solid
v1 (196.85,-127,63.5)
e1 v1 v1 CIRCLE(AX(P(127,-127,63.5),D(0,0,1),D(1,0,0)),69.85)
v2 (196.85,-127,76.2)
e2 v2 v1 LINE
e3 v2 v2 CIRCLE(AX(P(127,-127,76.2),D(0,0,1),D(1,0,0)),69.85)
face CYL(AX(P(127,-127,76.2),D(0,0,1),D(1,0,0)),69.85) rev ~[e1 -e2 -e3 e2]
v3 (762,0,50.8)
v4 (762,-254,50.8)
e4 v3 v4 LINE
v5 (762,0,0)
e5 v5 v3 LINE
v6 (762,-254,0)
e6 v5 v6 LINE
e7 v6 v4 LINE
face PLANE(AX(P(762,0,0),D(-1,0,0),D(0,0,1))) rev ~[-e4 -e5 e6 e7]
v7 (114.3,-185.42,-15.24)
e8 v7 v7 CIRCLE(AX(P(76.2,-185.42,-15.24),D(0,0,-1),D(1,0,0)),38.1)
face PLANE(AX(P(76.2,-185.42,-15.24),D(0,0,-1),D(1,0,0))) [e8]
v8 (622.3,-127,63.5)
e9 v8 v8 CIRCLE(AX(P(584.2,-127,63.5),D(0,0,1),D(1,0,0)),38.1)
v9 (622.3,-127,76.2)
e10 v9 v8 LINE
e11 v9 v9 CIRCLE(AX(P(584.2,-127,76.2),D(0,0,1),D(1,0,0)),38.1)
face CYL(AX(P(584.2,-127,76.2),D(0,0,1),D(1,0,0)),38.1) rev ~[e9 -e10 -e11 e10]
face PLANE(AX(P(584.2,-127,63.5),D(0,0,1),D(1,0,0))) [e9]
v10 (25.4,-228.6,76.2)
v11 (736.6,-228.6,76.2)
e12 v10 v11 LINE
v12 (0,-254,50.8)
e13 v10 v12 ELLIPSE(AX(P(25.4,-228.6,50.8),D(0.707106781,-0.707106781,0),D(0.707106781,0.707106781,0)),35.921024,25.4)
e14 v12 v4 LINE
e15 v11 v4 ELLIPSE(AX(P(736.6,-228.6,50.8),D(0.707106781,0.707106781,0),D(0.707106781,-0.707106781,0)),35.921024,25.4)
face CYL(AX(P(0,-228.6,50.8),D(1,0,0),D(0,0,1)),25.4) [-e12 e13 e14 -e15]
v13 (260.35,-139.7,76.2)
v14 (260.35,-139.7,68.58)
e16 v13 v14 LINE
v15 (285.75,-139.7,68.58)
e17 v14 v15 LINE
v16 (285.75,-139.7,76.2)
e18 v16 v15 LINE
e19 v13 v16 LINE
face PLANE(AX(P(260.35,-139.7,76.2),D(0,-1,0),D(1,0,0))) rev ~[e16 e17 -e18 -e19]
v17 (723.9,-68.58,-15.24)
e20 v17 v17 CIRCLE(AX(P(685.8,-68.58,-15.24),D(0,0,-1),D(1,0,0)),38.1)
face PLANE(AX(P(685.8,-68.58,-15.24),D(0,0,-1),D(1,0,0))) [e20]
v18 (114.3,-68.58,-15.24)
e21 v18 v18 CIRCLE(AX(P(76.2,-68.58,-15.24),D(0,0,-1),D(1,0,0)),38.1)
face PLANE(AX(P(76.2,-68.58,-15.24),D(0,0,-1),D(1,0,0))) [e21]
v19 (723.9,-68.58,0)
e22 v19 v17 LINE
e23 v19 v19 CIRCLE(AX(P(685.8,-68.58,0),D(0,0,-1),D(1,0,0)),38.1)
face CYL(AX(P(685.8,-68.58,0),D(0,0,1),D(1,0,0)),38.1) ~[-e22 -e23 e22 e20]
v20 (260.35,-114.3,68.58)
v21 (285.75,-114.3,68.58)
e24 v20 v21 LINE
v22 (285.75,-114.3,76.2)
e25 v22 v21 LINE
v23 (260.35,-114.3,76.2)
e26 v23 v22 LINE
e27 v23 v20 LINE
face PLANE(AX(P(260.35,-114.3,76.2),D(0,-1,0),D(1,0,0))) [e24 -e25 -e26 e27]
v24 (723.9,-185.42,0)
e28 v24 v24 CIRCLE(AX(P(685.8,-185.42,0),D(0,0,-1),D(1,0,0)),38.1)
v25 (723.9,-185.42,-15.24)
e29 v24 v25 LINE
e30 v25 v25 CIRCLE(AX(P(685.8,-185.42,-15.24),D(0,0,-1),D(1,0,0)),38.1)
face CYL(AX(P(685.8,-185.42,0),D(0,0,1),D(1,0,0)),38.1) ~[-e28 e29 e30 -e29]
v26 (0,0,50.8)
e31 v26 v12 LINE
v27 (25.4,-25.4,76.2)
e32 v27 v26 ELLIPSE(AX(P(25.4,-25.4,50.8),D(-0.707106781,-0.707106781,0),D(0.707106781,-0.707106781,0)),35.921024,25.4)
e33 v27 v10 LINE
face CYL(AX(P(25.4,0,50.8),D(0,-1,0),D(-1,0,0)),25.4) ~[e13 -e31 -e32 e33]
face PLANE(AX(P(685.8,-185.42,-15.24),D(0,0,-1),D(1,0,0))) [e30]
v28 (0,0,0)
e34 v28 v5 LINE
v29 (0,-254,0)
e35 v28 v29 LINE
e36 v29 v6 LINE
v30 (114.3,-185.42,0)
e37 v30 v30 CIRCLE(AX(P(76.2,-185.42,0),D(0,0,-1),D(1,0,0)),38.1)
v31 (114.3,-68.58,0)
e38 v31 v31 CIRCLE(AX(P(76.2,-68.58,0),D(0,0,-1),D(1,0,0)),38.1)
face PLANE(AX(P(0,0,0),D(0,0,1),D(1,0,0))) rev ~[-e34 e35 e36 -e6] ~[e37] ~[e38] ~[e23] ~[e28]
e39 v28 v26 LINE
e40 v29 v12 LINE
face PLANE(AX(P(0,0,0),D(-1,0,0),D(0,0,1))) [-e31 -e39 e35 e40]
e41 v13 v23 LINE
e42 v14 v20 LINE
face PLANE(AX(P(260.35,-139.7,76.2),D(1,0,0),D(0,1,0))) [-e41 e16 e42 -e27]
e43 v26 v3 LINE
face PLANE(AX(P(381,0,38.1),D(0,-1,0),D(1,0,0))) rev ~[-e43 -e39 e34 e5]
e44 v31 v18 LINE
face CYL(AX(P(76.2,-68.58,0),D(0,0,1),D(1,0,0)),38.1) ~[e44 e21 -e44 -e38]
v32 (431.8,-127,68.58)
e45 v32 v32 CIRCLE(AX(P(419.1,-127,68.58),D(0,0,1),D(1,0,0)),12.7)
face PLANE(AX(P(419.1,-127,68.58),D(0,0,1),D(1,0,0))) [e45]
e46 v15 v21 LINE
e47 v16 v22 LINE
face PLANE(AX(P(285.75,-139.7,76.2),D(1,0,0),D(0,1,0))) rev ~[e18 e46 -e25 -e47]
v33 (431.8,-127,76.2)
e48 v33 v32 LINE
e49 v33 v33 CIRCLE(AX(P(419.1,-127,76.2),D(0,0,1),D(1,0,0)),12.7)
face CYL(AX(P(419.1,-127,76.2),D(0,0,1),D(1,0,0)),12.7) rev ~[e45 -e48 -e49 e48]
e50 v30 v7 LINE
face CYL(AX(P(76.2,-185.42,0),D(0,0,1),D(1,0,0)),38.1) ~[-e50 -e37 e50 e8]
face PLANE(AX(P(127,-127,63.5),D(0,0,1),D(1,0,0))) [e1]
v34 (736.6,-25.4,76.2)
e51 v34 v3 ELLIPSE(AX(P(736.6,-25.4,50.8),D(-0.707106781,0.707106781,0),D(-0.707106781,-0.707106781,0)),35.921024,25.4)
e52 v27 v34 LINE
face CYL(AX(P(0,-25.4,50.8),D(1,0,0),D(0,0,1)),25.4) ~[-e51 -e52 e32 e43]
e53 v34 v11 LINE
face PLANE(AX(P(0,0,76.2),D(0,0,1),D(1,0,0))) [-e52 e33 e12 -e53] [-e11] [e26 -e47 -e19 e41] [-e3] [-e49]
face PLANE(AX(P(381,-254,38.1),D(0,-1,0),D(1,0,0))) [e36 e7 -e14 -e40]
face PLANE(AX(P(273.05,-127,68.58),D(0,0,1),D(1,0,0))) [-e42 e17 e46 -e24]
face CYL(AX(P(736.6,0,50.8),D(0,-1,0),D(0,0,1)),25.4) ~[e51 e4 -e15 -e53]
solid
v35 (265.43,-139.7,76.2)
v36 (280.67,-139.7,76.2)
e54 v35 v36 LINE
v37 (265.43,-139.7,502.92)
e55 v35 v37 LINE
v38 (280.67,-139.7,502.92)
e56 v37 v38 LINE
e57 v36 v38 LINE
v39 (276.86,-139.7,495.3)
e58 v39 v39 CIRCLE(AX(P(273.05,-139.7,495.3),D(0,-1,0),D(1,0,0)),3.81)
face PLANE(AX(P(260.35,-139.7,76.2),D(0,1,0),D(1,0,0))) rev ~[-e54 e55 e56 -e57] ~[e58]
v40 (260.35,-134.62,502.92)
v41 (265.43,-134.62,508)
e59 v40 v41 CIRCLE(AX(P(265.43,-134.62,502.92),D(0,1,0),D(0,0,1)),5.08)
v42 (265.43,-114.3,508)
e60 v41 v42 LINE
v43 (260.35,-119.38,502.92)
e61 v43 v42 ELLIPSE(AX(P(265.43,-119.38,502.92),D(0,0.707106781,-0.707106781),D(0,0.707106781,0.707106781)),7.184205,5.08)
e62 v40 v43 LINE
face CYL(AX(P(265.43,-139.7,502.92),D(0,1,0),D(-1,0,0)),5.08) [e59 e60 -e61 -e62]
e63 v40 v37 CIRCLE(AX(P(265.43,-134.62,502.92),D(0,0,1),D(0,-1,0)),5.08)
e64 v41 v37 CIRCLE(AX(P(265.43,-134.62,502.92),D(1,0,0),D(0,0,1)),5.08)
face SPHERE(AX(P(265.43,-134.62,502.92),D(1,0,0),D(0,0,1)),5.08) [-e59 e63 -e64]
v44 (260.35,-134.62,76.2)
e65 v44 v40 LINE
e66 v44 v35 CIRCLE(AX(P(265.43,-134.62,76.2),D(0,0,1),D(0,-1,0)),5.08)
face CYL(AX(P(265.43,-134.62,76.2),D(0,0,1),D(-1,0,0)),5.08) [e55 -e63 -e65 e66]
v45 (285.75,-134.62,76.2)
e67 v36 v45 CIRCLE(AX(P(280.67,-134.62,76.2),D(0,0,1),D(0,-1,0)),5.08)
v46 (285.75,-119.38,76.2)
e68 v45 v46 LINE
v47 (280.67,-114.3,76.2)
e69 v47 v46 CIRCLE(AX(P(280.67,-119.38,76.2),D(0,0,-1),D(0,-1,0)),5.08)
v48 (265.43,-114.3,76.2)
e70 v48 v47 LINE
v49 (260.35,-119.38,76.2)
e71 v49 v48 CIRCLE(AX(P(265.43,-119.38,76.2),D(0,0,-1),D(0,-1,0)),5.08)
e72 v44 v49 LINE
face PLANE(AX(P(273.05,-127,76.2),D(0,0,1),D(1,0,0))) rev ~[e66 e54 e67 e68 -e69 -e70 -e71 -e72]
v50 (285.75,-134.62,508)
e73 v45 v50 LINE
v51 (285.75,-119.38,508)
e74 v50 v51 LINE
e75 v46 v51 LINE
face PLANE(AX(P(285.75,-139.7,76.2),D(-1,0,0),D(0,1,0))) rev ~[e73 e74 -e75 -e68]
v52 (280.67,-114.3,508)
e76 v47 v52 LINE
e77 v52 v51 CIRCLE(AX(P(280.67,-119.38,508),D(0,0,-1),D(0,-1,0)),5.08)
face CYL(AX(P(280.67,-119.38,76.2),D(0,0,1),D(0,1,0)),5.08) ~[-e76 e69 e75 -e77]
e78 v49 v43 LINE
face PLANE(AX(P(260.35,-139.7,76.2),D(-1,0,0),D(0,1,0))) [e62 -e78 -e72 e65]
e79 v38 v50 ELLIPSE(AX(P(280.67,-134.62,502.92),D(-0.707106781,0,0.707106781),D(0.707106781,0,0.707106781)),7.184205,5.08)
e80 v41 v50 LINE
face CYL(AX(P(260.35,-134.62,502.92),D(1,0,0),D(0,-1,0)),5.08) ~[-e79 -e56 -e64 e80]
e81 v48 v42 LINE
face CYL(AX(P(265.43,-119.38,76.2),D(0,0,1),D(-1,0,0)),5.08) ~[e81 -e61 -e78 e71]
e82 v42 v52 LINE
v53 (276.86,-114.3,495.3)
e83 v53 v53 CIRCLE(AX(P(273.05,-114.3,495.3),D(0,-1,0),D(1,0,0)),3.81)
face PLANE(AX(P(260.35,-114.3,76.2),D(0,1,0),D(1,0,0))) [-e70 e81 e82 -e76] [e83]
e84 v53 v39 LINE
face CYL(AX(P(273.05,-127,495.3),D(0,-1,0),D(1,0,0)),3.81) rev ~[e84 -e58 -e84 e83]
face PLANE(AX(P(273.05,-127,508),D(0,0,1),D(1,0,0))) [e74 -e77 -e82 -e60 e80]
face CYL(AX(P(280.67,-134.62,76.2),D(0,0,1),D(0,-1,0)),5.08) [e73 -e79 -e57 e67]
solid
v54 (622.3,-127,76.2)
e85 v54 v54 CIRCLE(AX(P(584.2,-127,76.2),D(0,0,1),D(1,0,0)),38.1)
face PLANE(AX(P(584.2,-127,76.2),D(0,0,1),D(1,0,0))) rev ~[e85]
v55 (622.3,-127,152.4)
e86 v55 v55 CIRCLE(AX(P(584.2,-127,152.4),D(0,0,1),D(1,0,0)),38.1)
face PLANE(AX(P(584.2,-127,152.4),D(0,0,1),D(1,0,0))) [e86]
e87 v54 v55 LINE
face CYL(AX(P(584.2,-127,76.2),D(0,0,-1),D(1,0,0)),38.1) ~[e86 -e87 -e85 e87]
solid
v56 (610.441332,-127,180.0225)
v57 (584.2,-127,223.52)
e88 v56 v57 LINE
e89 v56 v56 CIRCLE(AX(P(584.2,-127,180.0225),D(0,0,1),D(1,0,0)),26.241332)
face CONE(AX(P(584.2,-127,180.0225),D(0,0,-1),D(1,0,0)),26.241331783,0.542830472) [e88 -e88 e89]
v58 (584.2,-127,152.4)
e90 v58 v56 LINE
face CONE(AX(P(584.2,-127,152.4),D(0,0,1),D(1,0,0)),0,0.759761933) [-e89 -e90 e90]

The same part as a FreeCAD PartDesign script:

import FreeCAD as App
import Part
import Sketcher
Q = App.Units.Quantity


def edges_at(feature, points):
    """Names of the edges that pass closest to the given points."""
    edges = feature.Shape.Edges
    near = lambda p: min(range(len(edges)), key=lambda i: edges[i].distToShape(Part.Vertex(*p))[0])
    return sorted({f"Edge{near(p) + 1}" for p in points})


def add_polygon(sketch, points):
    """Adds a closed chain of lines whose ends are joined by coincident constraints."""
    first, n = sketch.GeometryCount, len(points)
    for a, b in zip(points, points[1:] + points[:1]):
        sketch.addGeometry(Part.LineSegment(App.Vector(*a, 0), App.Vector(*b, 0)), False)
    for i in range(n):
        sketch.addConstraint(Sketcher.Constraint("Coincident", first + i, 2, first + (i + 1) % n, 1))

doc = App.newDocument("Part")
body = doc.addObject("PartDesign::Body", "Body")

# Sketch on XZ plane
sketch1 = body.newObject("Sketcher::SketchObject", "Sketch")
sketch1.AttachmentSupport = (doc.getObject("XZ_Plane"), [""])
sketch1.MapMode = "FlatFace"
add_polygon(sketch1, [(0, 76.2), (0, 0), (762, 0), (762, 76.2)])  # lines 0-3
sketch1.addConstraint([
    Sketcher.Constraint("Vertical", 0),
    Sketcher.Constraint("Horizontal", 1),
    Sketcher.Constraint("Vertical", 2),
    Sketcher.Constraint("Horizontal", 3),
    Sketcher.Constraint("Coincident", 0, 2, -1, 1),
    Sketcher.Constraint("DistanceX", 1, 1, 1, 2, Q("30 in")),
    Sketcher.Constraint("DistanceY", 0, 2, 0, 1, Q("3 in")),
])
pad1 = body.newObject("PartDesign::Pad", "Pad")
pad1.Profile = sketch1
pad1.Length = Q("10 in")

# Sketch on XY plane
sketch2 = body.newObject("Sketcher::SketchObject", "Sketch001")
sketch2.AttachmentSupport = (doc.getObject("XY_Plane"), [""])
sketch2.MapMode = "FlatFace"
sketch2.addGeometry([
    Part.Circle(App.Vector(76.2, -185.42, 0), App.Vector(0, 0, 1), 38.1),
    Part.Circle(App.Vector(685.8, -185.42, 0), App.Vector(0, 0, 1), 38.1),
    Part.Circle(App.Vector(685.8, -68.58, 0), App.Vector(0, 0, 1), 38.1),
    Part.Circle(App.Vector(76.2, -68.58, 0), App.Vector(0, 0, 1), 38.1),
], False)
sketch2.addConstraint([
    Sketcher.Constraint("Equal", 0, 1),
    Sketcher.Constraint("Equal", 1, 2),
    Sketcher.Constraint("Equal", 2, 3),
    Sketcher.Constraint("Horizontal", 0, 3, 1, 3),
    Sketcher.Constraint("Horizontal", 2, 3, 3, 3),
    Sketcher.Constraint("Vertical", 1, 3, 2, 3),
    Sketcher.Constraint("Vertical", 0, 3, 3, 3),
    Sketcher.Constraint("Diameter", 0, Q("3 in")),
    Sketcher.Constraint("DistanceX", -1, 1, 0, 3, Q("3 in")),
    Sketcher.Constraint("DistanceX", -1, 1, 1, 3, Q("27 in")),
    Sketcher.Constraint("DistanceY", 0, 3, -1, 1, Q("7.3 in")),
    Sketcher.Constraint("DistanceY", 2, 3, -1, 1, Q("2.7 in")),
])
pad2 = body.newObject("PartDesign::Pad", "Pad001")
pad2.Profile = sketch2
pad2.Length = Q("0.6 in")
pad2.Reversed = True

# Sketch on XY plane
sketch3 = body.newObject("Sketcher::SketchObject", "Sketch002")
sketch3.AttachmentSupport = (doc.getObject("XY_Plane"), [""])
sketch3.MapMode = "FlatFace"
sketch3.AttachmentOffset = App.Placement(App.Vector(0, 0, 3 * 25.4), App.Rotation())
sketch3.addGeometry(Part.Circle(App.Vector(127, -127, 0), App.Vector(0, 0, 1), 69.85), False)
sketch3.addConstraint([
    Sketcher.Constraint("Diameter", 0, Q("5.5 in")),
    Sketcher.Constraint("DistanceX", -1, 1, 0, 3, Q("5 in")),
    Sketcher.Constraint("DistanceY", 0, 3, -1, 1, Q("5 in")),
])
pocket1 = body.newObject("PartDesign::Pocket", "Pocket")
pocket1.Profile = sketch3
pocket1.Length = Q("0.5 in")

# Sketch on XY plane
sketch4 = body.newObject("Sketcher::SketchObject", "Sketch003")
sketch4.AttachmentSupport = (doc.getObject("XY_Plane"), [""])
sketch4.MapMode = "FlatFace"
sketch4.AttachmentOffset = App.Placement(App.Vector(0, 0, 3 * 25.4), App.Rotation())
sketch4.addGeometry(Part.Circle(App.Vector(584.2, -127, 0), App.Vector(0, 0, 1), 38.1), False)
sketch4.addConstraint([
    Sketcher.Constraint("Diameter", 0, Q("3 in")),
    Sketcher.Constraint("DistanceX", -1, 1, 0, 3, Q("23 in")),
    Sketcher.Constraint("DistanceY", 0, 3, -1, 1, Q("5 in")),
])
pocket2 = body.newObject("PartDesign::Pocket", "Pocket001")
pocket2.Profile = sketch4
pocket2.Length = Q("0.5 in")

# Sketch on XY plane
sketch5 = body.newObject("Sketcher::SketchObject", "Sketch004")
sketch5.AttachmentSupport = (doc.getObject("XY_Plane"), [""])
sketch5.MapMode = "FlatFace"
sketch5.AttachmentOffset = App.Placement(App.Vector(0, 0, 3 * 25.4), App.Rotation())
sketch5.addGeometry(Part.Circle(App.Vector(419.1, -127, 0), App.Vector(0, 0, 1), 12.7), False)
sketch5.addConstraint([
    Sketcher.Constraint("Diameter", 0, Q("1 in")),
    Sketcher.Constraint("DistanceY", 0, 3, -1, 1, Q("5 in")),
    Sketcher.Constraint("DistanceX", -1, 1, 0, 3, Q("16.5 in")),
])
pocket3 = body.newObject("PartDesign::Pocket", "Pocket002")
pocket3.Profile = sketch5
pocket3.Length = Q("0.3 in")

# Sketch on XY plane
sketch6 = body.newObject("Sketcher::SketchObject", "Sketch005")
sketch6.AttachmentSupport = (doc.getObject("XY_Plane"), [""])
sketch6.MapMode = "FlatFace"
sketch6.AttachmentOffset = App.Placement(App.Vector(0, 0, 3 * 25.4), App.Rotation())
add_polygon(sketch6, [(260.35, -114.3), (260.35, -139.7), (285.75, -139.7), (285.75, -114.3)])  # lines 0-3
sketch6.addConstraint([
    Sketcher.Constraint("Vertical", 0),
    Sketcher.Constraint("Horizontal", 1),
    Sketcher.Constraint("Vertical", 2),
    Sketcher.Constraint("Horizontal", 3),
    Sketcher.Constraint("Equal", 3, 0),
    Sketcher.Constraint("DistanceX", 1, 1, 1, 2, Q("1 in")),
    Sketcher.Constraint("DistanceY", 0, 2, -1, 1, Q("5.5 in")),
    Sketcher.Constraint("DistanceX", -1, 1, 0, 2, Q("10.25 in")),
])
pocket4 = body.newObject("PartDesign::Pocket", "Pocket003")
pocket4.Profile = sketch6
pocket4.Length = Q("0.3 in")
doc.recompute()

fillet = body.newObject("PartDesign::Fillet", "Fillet")
fillet.Base = (pocket4, edges_at(pocket4, [
    (381, -254, 76.2),
    (762, -127, 76.2),
    (381, 0, 76.2),
    (0, -127, 76.2),
]))
fillet.Radius = Q("1 in")
body2 = doc.addObject("PartDesign::Body", "Body001")

# Sketch on XY plane
sketch7 = body2.newObject("Sketcher::SketchObject", "Sketch006")
sketch7.AttachmentSupport = (doc.getObject("XY_Plane001"), [""])
sketch7.MapMode = "FlatFace"
sketch7.AttachmentOffset = App.Placement(App.Vector(0, 0, 3 * 25.4), App.Rotation())
sketch7.addGeometry(Part.Circle(App.Vector(584.2, -127, 0), App.Vector(0, 0, 1), 38.1), False)
sketch7.addConstraint([
    Sketcher.Constraint("Diameter", 0, Q("3 in")),
    Sketcher.Constraint("DistanceX", -1, 1, 0, 3, Q("23 in")),
    Sketcher.Constraint("DistanceY", 0, 3, -1, 1, Q("5 in")),
])
pad3 = body2.newObject("PartDesign::Pad", "Pad002")
pad3.Profile = sketch7
pad3.Length = Q("3 in")
body3 = doc.addObject("PartDesign::Body", "Body002")

# Sketch on XZ plane
sketch8 = body3.newObject("Sketcher::SketchObject", "Sketch007")
sketch8.AttachmentSupport = (doc.getObject("XZ_Plane002"), [""])
sketch8.MapMode = "FlatFace"
sketch8.AttachmentOffset = App.Placement(App.Vector(0, 0, 5 * 25.4), App.Rotation())
add_polygon(sketch8, [(584.2, 223.52), (584.2, 152.4), (610.441332, 180.0225)])  # lines 0-2
sketch8.addGeometry(Part.LineSegment(App.Vector(584.2, 152.4, 0), App.Vector(584.2, 223.52, 0)), True)  # axis
sketch8.addConstraint([
    Sketcher.Constraint("Vertical", 0),
    Sketcher.Constraint("Vertical", 3),
    Sketcher.Constraint("Coincident", 3, 1, 0, 2),
    Sketcher.Constraint("Equal", 0, 3),
    Sketcher.Constraint("Distance", 2, Q("2 in")),
    Sketcher.Constraint("DistanceY", 0, 2, 0, 1, Q("2.8 in")),
    Sketcher.Constraint("DistanceX", -1, 1, 0, 2, Q("23 in")),
    Sketcher.Constraint("DistanceY", -1, 1, 0, 2, Q("6 in")),
    Sketcher.Constraint("Distance", 1, Q("1.5 in")),
])
revolution = body3.newObject("PartDesign::Revolution", "Revolution")
revolution.Profile = sketch8
revolution.ReferenceAxis = (sketch8, ["Axis0"])
revolution.Angle = 360
body4 = doc.addObject("PartDesign::Body", "Body003")

# Sketch on XY plane
sketch9 = body4.newObject("Sketcher::SketchObject", "Sketch008")
sketch9.AttachmentSupport = (doc.getObject("XY_Plane003"), [""])
sketch9.MapMode = "FlatFace"
sketch9.AttachmentOffset = App.Placement(App.Vector(0, 0, 3 * 25.4), App.Rotation())
add_polygon(sketch9, [(260.35, -114.3), (260.35, -139.7), (285.75, -139.7), (285.75, -114.3)])  # lines 0-3
sketch9.addConstraint([
    Sketcher.Constraint("Vertical", 0),
    Sketcher.Constraint("Horizontal", 1),
    Sketcher.Constraint("Vertical", 2),
    Sketcher.Constraint("Horizontal", 3),
    Sketcher.Constraint("Equal", 3, 0),
    Sketcher.Constraint("DistanceX", 1, 1, 1, 2, Q("1 in")),
    Sketcher.Constraint("DistanceY", 0, 2, -1, 1, Q("5.5 in")),
    Sketcher.Constraint("DistanceX", -1, 1, 0, 2, Q("10.25 in")),
])
pad4 = body4.newObject("PartDesign::Pad", "Pad003")
pad4.Profile = sketch9
pad4.Length = Q("17 in")

# Sketch on XZ plane
sketch10 = body4.newObject("Sketcher::SketchObject", "Sketch009")
sketch10.AttachmentSupport = (doc.getObject("XZ_Plane003"), [""])
sketch10.MapMode = "FlatFace"
sketch10.AttachmentOffset = App.Placement(App.Vector(0, 0, 5 * 25.4), App.Rotation())
sketch10.addGeometry(Part.Circle(App.Vector(273.05, 495.3, 0), App.Vector(0, 0, 1), 3.81), False)
sketch10.addConstraint([
    Sketcher.Constraint("Diameter", 0, Q("0.3 in")),
    Sketcher.Constraint("DistanceY", -1, 1, 0, 3, Q("19.5 in")),
    Sketcher.Constraint("DistanceX", -1, 1, 0, 3, Q("10.75 in")),
])
pocket5 = body4.newObject("PartDesign::Pocket", "Pocket004")
pocket5.Profile = sketch10
pocket5.Length = Q("1 in")
pocket5.Midplane = True
doc.recompute()

fillet2 = body4.newObject("PartDesign::Fillet", "Fillet001")
fillet2.Base = (pocket5, edges_at(pocket5, [
    (285.75, -139.7, 292.1),
    (273.05, -139.7, 508),
    (285.75, -114.3, 292.1),
    (260.35, -127, 508),
    (260.35, -139.7, 292.1),
    (260.35, -114.3, 292.1),
]))
fillet2.Radius = Q("0.2 in")

doc.recompute()
